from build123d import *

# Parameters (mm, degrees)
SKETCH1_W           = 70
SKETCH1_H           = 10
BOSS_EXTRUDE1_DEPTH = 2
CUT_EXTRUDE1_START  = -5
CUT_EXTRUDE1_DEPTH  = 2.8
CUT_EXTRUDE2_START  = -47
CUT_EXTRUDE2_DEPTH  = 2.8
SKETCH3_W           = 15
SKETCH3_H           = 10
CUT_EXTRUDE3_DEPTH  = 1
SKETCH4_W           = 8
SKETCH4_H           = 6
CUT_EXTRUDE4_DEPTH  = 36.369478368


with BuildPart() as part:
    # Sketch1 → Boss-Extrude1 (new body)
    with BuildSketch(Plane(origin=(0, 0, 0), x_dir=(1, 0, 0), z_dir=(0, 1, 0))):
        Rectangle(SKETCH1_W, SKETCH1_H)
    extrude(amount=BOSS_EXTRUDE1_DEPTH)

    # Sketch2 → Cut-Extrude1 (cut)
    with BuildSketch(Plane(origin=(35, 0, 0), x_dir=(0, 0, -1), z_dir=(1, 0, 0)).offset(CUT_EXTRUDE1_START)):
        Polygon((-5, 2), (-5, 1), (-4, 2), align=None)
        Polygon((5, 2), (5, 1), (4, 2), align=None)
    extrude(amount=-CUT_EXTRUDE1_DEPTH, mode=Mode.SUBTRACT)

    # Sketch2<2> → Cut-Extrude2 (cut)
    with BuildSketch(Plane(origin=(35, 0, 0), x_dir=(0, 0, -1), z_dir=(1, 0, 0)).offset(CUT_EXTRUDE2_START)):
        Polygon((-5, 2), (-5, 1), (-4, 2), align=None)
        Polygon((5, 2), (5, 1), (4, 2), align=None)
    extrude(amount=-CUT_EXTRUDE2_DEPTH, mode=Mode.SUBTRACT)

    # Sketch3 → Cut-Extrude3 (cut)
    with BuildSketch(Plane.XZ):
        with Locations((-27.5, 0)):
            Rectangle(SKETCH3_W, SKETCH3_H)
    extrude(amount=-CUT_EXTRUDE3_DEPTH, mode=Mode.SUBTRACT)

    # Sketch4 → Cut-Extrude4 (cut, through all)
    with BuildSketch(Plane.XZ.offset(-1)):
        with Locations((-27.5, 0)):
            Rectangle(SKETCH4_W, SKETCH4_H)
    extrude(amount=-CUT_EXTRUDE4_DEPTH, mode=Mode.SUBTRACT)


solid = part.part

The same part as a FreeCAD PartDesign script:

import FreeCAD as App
import Part
import Sketcher


def add_polygon(sketch, points):
    """Adds a closed chain of lines whose ends are joined by coincident constraints."""
    first, n = sketch.GeometryCount, len(points)
    for a, b in zip(points, points[1:] + points[:1]):
        sketch.addGeometry(Part.LineSegment(App.Vector(*a, 0), App.Vector(*b, 0)), False)
    for i in range(n):
        sketch.addConstraint(Sketcher.Constraint("Coincident", first + i, 2, first + (i + 1) % n, 1))

doc = App.newDocument("Part")
body = doc.addObject("PartDesign::Body", "Body")

# Sketch on XZ plane
sketch1 = body.newObject("Sketcher::SketchObject", "Sketch")
sketch1.AttachmentSupport = (doc.getObject("XZ_Plane"), [""])
sketch1.MapMode = "FlatFace"
add_polygon(sketch1, [(-35, -5), (-35, 5), (35, 5), (35, -5)])  # lines 0-3
sketch1.addConstraint([
    Sketcher.Constraint("Vertical", 0),
    Sketcher.Constraint("Horizontal", 1),
    Sketcher.Constraint("Vertical", 2),
    Sketcher.Constraint("Horizontal", 3),
    Sketcher.Constraint("Symmetric", 0, 2, 2, 2, -1, 1),
    Sketcher.Constraint("DistanceX", 1, 1, 1, 2, 70.0),
    Sketcher.Constraint("DistanceY", 0, 1, 0, 2, 10.0),
])
pad1 = body.newObject("PartDesign::Pad", "Pad")
pad1.Profile = sketch1
pad1.Length = 2
pad1.Reversed = True

# Sketch on YZ plane
sketch2 = body.newObject("Sketcher::SketchObject", "Sketch001")
sketch2.AttachmentSupport = (doc.getObject("YZ_Plane"), [""])
sketch2.MapMode = "FlatFace"
sketch2.AttachmentOffset = App.Placement(App.Vector(0, 0, 30), App.Rotation())
add_polygon(sketch2, [(2, 5), (1, 5), (2, 4)])  # lines 0-2
add_polygon(sketch2, [(1, -5), (2, -5), (2, -4)])  # lines 3-5
sketch2.addConstraint([
    Sketcher.Constraint("Horizontal", 0),
    Sketcher.Constraint("Vertical", 2),
    Sketcher.Constraint("Horizontal", 3),
    Sketcher.Constraint("Vertical", 4),
    Sketcher.Constraint("Symmetric", 2, 2, 3, 2, -1),
    Sketcher.Constraint("Perpendicular", 1, 5),
    Sketcher.Constraint("Vertical", 0, 2, 5, 2),
    Sketcher.Constraint("Equal", 3, 2),
    Sketcher.Constraint("DistanceX", 0, 2, 0, 1, 1.0),
    Sketcher.Constraint("DistanceX", -1, 1, 0, 2, 1.0),
    Sketcher.Constraint("DistanceY", -1, 1, 0, 2, 5.0),
])
pocket1 = body.newObject("PartDesign::Pocket", "Pocket")
pocket1.Profile = sketch2
pocket1.Length = 2.8

# Sketch on YZ plane
sketch3 = body.newObject("Sketcher::SketchObject", "Sketch002")
sketch3.AttachmentSupport = (doc.getObject("YZ_Plane"), [""])
sketch3.MapMode = "FlatFace"
sketch3.AttachmentOffset = App.Placement(App.Vector(0, 0, -12), App.Rotation())
add_polygon(sketch3, [(2, 5), (1, 5), (2, 4)])  # lines 0-2
add_polygon(sketch3, [(1, -5), (2, -5), (2, -4)])  # lines 3-5
sketch3.addConstraint([
    Sketcher.Constraint("Horizontal", 0),
    Sketcher.Constraint("Vertical", 2),
    Sketcher.Constraint("Horizontal", 3),
    Sketcher.Constraint("Vertical", 4),
    Sketcher.Constraint("Symmetric", 2, 2, 3, 2, -1),
    Sketcher.Constraint("Perpendicular", 1, 5),
    Sketcher.Constraint("Vertical", 0, 2, 5, 2),
    Sketcher.Constraint("Equal", 3, 2),
    Sketcher.Constraint("DistanceX", 0, 2, 0, 1, 1.0),
    Sketcher.Constraint("DistanceX", -1, 1, 0, 2, 1.0),
    Sketcher.Constraint("DistanceY", -1, 1, 0, 2, 5.0),
])
pocket2 = body.newObject("PartDesign::Pocket", "Pocket001")
pocket2.Profile = sketch3
pocket2.Length = 2.8

# Sketch on XZ plane
sketch4 = body.newObject("Sketcher::SketchObject", "Sketch003")
sketch4.AttachmentSupport = (doc.getObject("XZ_Plane"), [""])
sketch4.MapMode = "FlatFace"
add_polygon(sketch4, [(-35, 5), (-35, -5), (-20, -5), (-20, 5)])  # lines 0-3
sketch4.addConstraint([
    Sketcher.Constraint("Vertical", 0),
    Sketcher.Constraint("Horizontal", 1),
    Sketcher.Constraint("Vertical", 2),
    Sketcher.Constraint("Horizontal", 3),
    Sketcher.Constraint("DistanceX", 1, 1, 1, 2, 15.0),
    Sketcher.Constraint("DistanceY", 0, 2, 0, 1, 10.0),
    Sketcher.Constraint("DistanceX", 0, 2, -1, 1, 35.0),
    Sketcher.Constraint("DistanceY", 0, 2, -1, 1, 5.0),
])
pocket3 = body.newObject("PartDesign::Pocket", "Pocket002")
pocket3.Profile = sketch4
pocket3.Length = 1

# Sketch on XZ plane
sketch5 = body.newObject("Sketcher::SketchObject", "Sketch004")
sketch5.AttachmentSupport = (doc.getObject("XZ_Plane"), [""])
sketch5.MapMode = "FlatFace"
sketch5.AttachmentOffset = App.Placement(App.Vector(0, 0, -1), App.Rotation())
add_polygon(sketch5, [(-32, 3), (-32, -3), (-24, -3), (-24, 3)])  # lines 0-3
sketch5.addConstraint([
    Sketcher.Constraint("Vertical", 0),
    Sketcher.Constraint("Horizontal", 1),
    Sketcher.Constraint("Vertical", 2),
    Sketcher.Constraint("Horizontal", 3),
    Sketcher.Constraint("DistanceX", 1, 1, 1, 2, 8.0),
    Sketcher.Constraint("DistanceY", 0, 2, 0, 1, 6.0),
    Sketcher.Constraint("DistanceY", 0, 2, -1, 1, 3.0),
    Sketcher.Constraint("DistanceX", 0, 2, -1, 1, 31.5),
])
pocket4 = body.newObject("PartDesign::Pocket", "Pocket003")
pocket4.Profile = sketch5
pocket4.Type = "ThroughAll"

doc.recompute()
